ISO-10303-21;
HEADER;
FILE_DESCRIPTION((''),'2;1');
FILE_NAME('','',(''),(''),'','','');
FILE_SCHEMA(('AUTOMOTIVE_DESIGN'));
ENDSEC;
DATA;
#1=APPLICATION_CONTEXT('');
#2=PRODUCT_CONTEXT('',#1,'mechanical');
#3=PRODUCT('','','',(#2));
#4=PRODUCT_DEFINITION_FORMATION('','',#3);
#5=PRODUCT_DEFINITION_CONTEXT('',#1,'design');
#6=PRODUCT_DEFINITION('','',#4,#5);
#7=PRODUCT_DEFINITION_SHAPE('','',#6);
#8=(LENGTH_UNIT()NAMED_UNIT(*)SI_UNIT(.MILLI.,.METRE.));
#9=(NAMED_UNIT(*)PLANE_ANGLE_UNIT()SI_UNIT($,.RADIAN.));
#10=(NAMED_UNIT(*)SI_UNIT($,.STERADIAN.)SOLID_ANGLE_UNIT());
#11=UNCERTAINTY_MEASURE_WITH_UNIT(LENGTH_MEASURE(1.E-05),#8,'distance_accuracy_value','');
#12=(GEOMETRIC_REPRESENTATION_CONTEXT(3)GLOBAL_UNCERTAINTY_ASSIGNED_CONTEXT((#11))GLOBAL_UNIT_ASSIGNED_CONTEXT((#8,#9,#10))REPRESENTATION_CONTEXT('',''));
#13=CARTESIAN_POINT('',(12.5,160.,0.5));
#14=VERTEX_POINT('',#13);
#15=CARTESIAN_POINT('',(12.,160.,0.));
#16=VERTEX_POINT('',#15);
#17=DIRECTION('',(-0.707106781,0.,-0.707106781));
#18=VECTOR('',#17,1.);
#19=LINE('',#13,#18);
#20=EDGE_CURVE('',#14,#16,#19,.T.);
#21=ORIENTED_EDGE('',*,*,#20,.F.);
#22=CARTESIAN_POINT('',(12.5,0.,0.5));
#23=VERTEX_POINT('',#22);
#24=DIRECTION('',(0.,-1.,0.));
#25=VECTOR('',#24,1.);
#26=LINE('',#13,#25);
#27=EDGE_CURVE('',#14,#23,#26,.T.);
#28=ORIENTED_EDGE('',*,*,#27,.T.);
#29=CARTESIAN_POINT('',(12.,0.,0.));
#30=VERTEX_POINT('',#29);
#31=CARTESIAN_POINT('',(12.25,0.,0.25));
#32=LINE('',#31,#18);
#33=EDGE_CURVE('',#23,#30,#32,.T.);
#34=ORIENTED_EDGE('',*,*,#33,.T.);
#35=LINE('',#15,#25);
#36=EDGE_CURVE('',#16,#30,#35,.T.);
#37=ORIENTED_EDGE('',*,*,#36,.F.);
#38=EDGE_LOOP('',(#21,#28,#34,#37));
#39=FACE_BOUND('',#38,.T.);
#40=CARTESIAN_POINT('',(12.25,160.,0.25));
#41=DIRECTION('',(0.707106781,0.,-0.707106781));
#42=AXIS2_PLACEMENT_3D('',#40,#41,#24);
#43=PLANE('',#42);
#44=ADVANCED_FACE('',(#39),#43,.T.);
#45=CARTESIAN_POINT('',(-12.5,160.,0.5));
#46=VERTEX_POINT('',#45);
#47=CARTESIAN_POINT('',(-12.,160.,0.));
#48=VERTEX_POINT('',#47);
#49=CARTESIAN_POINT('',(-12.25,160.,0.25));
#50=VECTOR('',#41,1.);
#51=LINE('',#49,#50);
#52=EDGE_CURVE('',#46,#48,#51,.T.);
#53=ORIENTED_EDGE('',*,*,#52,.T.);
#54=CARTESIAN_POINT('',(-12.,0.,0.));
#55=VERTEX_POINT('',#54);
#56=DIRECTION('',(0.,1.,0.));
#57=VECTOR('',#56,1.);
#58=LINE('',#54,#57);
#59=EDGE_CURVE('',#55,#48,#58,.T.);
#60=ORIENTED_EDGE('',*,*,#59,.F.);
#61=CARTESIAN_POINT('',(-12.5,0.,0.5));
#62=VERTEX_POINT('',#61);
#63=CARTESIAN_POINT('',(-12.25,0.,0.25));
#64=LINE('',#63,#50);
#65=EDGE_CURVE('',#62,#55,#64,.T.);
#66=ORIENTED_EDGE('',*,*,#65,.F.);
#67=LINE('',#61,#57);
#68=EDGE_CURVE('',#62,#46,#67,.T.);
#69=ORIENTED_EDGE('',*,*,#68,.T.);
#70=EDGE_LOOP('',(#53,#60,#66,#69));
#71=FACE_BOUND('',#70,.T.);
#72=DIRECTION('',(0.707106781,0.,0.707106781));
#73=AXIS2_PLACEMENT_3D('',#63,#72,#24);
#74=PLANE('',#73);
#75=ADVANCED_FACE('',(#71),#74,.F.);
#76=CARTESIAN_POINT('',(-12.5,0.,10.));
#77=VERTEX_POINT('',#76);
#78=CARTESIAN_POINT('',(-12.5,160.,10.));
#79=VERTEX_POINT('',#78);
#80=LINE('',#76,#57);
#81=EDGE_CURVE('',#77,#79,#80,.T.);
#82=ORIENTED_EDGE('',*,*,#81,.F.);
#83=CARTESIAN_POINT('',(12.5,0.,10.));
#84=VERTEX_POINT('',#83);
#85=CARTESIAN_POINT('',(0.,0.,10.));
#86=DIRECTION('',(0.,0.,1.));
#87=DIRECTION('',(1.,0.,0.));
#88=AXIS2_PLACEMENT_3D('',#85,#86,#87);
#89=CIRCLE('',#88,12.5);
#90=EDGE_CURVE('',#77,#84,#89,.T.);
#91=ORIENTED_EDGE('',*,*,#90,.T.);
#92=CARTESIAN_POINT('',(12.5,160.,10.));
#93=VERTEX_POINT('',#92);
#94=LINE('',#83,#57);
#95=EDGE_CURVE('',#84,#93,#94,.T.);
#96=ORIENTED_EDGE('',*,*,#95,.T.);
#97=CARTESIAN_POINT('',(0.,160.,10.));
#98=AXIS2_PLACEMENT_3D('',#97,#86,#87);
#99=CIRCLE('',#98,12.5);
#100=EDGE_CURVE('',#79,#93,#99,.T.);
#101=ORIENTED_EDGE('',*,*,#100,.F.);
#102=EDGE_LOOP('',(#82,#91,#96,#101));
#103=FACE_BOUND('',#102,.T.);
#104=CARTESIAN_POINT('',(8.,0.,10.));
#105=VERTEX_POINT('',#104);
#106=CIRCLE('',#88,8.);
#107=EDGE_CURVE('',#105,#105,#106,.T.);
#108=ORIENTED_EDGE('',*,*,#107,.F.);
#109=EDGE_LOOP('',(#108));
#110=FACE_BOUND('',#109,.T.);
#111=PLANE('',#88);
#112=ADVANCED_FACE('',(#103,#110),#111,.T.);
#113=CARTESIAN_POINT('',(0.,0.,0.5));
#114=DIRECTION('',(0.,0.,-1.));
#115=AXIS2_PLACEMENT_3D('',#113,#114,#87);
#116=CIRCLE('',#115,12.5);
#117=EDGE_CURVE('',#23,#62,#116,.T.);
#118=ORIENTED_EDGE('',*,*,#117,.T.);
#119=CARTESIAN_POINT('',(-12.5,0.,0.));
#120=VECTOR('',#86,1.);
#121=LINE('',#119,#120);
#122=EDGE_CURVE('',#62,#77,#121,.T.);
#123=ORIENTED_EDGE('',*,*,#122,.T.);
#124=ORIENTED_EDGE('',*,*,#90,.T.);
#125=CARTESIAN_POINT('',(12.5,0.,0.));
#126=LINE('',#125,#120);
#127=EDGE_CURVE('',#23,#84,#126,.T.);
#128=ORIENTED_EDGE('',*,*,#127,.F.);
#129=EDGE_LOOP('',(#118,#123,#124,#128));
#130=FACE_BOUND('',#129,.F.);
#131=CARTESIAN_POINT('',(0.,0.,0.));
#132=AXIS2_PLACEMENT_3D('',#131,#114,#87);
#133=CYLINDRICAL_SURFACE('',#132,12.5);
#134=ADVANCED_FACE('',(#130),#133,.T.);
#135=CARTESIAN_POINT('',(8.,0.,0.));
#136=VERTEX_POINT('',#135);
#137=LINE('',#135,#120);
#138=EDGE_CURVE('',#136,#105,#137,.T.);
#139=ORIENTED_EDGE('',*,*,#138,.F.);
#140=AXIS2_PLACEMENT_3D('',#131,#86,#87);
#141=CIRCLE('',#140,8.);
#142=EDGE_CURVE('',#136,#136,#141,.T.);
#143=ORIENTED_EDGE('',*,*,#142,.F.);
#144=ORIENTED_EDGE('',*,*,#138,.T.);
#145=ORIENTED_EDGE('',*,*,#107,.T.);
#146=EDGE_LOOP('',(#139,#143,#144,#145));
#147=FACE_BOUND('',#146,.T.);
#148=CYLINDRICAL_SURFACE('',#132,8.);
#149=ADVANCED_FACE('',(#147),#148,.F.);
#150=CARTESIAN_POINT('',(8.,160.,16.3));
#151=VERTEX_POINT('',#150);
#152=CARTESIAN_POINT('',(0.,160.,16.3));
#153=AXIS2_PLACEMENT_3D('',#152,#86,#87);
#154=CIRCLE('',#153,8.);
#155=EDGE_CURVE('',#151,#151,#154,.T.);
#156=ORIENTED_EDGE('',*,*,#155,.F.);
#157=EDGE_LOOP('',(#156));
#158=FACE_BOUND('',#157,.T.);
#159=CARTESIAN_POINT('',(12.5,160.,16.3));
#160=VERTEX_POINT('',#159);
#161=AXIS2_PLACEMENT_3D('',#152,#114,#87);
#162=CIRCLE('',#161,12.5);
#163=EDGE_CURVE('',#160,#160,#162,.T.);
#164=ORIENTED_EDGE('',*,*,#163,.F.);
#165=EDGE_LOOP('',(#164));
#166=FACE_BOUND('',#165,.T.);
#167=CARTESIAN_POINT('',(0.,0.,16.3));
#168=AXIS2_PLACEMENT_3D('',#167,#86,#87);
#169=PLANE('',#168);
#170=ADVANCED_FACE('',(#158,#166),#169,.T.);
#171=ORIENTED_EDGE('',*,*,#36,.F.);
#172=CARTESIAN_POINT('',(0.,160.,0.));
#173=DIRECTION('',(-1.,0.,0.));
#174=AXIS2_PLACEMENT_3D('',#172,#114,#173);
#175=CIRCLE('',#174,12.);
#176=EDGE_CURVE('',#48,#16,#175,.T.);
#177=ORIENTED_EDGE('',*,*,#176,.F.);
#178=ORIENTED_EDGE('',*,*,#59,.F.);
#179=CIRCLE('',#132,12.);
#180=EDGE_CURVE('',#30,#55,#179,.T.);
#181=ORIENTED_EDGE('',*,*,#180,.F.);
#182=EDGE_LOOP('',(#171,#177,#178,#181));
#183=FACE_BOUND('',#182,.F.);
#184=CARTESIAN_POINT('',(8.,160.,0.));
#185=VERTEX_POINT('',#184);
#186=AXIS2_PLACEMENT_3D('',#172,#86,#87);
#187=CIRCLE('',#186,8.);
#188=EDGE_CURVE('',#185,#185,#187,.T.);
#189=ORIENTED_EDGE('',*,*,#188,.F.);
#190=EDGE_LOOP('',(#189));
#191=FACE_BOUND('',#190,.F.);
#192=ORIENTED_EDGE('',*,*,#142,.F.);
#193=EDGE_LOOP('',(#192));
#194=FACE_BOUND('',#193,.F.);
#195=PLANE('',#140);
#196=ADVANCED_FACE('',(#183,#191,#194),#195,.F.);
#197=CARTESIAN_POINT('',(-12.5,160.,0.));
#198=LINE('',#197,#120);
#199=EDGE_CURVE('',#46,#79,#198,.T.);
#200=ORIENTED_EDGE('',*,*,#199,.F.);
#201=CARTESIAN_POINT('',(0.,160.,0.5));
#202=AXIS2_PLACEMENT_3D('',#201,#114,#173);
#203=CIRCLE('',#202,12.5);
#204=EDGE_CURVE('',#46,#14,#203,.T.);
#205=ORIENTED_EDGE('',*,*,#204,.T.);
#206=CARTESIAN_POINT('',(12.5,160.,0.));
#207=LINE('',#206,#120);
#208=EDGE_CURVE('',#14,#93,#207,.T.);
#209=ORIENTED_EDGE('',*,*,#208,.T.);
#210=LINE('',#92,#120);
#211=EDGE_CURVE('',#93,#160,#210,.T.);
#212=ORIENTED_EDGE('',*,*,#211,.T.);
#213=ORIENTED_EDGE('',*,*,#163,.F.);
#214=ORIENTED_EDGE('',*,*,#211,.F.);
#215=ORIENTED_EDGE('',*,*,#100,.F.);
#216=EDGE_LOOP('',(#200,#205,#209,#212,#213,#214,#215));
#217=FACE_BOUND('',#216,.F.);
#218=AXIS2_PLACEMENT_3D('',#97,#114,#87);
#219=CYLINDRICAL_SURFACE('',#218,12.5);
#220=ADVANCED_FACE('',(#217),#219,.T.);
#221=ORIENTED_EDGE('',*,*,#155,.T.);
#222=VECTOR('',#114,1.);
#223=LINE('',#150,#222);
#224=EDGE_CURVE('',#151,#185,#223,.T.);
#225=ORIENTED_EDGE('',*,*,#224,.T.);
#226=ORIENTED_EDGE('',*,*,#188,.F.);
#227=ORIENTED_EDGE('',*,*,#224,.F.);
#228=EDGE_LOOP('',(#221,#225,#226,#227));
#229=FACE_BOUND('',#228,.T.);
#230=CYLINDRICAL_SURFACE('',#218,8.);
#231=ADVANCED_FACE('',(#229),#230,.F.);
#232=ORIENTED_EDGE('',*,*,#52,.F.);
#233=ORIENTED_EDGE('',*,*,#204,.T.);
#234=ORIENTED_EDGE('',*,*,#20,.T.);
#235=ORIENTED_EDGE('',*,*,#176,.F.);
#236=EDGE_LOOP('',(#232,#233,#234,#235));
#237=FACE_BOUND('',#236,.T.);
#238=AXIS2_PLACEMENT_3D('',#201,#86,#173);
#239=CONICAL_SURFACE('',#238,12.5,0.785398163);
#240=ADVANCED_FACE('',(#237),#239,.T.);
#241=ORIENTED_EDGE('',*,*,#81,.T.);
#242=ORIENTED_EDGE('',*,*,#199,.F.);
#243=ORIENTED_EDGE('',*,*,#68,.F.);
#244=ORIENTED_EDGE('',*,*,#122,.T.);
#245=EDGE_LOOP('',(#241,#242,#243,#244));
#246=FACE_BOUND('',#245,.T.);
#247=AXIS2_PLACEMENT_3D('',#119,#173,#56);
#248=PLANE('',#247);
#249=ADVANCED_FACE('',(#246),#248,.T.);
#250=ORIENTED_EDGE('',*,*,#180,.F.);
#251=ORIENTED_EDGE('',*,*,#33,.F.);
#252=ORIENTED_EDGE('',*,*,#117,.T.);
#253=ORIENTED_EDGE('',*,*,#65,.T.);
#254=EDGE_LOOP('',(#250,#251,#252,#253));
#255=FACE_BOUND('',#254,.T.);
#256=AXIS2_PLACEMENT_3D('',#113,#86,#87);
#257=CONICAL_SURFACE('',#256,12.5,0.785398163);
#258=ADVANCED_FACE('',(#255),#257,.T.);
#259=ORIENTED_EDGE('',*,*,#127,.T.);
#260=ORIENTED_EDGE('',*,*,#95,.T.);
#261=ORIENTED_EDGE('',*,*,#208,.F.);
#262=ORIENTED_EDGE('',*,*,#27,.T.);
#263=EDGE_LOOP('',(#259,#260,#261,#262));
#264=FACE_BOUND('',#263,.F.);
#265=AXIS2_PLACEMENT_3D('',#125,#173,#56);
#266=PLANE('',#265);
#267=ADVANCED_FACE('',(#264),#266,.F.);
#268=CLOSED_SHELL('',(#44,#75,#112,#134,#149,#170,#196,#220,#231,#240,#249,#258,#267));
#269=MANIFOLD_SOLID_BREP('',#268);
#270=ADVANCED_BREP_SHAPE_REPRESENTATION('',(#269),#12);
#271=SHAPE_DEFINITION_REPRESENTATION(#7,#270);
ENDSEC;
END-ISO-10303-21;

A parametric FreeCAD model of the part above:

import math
import FreeCAD as App
import Part
import Sketcher

V = App.Vector
Q = App.Units.Quantity


def edges_at(feature, points):
    """Names of the edges that pass closest to the given points."""
    edges = feature.Shape.Edges
    near = lambda p: min(range(len(edges)), key=lambda i: edges[i].distToShape(Part.Vertex(*p))[0])
    return sorted({f"Edge{near(p) + 1}" for p in points})

doc = App.newDocument("Part")
body = doc.addObject("PartDesign::Body", "Body")

sketch1 = doc.addObject("Sketcher::SketchObject", "Sketch")
body.addObject(sketch1)
sketch1.AttachmentSupport = (doc.XY_Plane, [""])
sketch1.MapMode = "FlatFace"
sketch1.addGeometry([
    Part.ArcOfCircle(Part.Circle(V(0, 0, 0), V(0, 0, 1), 12), math.radians(180), math.radians(360)),
    Part.LineSegment(V(12, 0, 0), V(12, 160, 0)),
    Part.ArcOfCircle(Part.Circle(V(0, 160, 0), V(0, 0, 1), 12), math.radians(0), math.radians(180)),
    Part.LineSegment(V(-12, 160, 0), V(-12, 0, 0)),
    Part.Circle(V(0, 0, 0), V(0, 0, 1), 8),
    Part.Circle(V(0, 160, 0), V(0, 0, 1), 8),
], False)
sketch1.addConstraint([
    Sketcher.Constraint("Tangent", 0, 2, 1, 1),
    Sketcher.Constraint("Tangent", 1, 2, 2, 1),
    Sketcher.Constraint("Tangent", 2, 2, 3, 1),
    Sketcher.Constraint("Tangent", 3, 2, 0, 1),
    Sketcher.Constraint("Vertical", 1),
    Sketcher.Constraint("Vertical", 3),
    Sketcher.Constraint("Coincident", 0, 3, -1, 1),
    Sketcher.Constraint("Coincident", 4, 3, -1, 1),
    Sketcher.Constraint("Coincident", 5, 3, 2, 3),
    Sketcher.Constraint("Equal", 4, 5),
    Sketcher.Constraint("Diameter", 4, Q("16 mm")),
    Sketcher.Constraint("Radius", 0, Q("12.5 mm")),
    Sketcher.Constraint("DistanceY", 1, 1, 1, 2, Q("160 mm")),
])
pad1 = doc.addObject("PartDesign::Pad", "Pad")
body.addObject(pad1)
pad1.Profile = sketch1
pad1.Length = 10

sketch2 = doc.addObject("Sketcher::SketchObject", "Sketch001")
body.addObject(sketch2)
sketch2.AttachmentSupport = (doc.XY_Plane, [""])
sketch2.MapMode = "FlatFace"
sketch2.AttachmentOffset = App.Placement(V(0, 0, 10), App.Rotation())
sketch2.addGeometry([
    Part.Circle(V(0, 160, 0), V(0, 0, 1), 12),
    Part.Circle(V(0, 160, 0), V(0, 0, 1), 8),
], False)
sketch2.addConstraint([
    Sketcher.Constraint("Coincident", 1, 3, 0, 3),
    Sketcher.Constraint("PointOnObject", 0, 3, -2),
    Sketcher.Constraint("Diameter", 0, Q("25 mm")),
    Sketcher.Constraint("Diameter", 1, Q("16 mm")),
    Sketcher.Constraint("DistanceY", -1, 1, 0, 3, Q("160 mm")),
])
pad2 = doc.addObject("PartDesign::Pad", "Pad001")
body.addObject(pad2)
pad2.Profile = sketch2
pad2.Length = 6.3
doc.recompute()

chamfer = doc.addObject("PartDesign::Chamfer", "Chamfer")
body.addObject(chamfer)
chamfer.Base = (pad2, edges_at(pad2, [
    (-12.5, 80, 0),
    (0, -12.5, 0),
    (12.5, 80, 0),
    (0, 172.5, 0),
]))
chamfer.Size = 0.5

doc.recompute()
